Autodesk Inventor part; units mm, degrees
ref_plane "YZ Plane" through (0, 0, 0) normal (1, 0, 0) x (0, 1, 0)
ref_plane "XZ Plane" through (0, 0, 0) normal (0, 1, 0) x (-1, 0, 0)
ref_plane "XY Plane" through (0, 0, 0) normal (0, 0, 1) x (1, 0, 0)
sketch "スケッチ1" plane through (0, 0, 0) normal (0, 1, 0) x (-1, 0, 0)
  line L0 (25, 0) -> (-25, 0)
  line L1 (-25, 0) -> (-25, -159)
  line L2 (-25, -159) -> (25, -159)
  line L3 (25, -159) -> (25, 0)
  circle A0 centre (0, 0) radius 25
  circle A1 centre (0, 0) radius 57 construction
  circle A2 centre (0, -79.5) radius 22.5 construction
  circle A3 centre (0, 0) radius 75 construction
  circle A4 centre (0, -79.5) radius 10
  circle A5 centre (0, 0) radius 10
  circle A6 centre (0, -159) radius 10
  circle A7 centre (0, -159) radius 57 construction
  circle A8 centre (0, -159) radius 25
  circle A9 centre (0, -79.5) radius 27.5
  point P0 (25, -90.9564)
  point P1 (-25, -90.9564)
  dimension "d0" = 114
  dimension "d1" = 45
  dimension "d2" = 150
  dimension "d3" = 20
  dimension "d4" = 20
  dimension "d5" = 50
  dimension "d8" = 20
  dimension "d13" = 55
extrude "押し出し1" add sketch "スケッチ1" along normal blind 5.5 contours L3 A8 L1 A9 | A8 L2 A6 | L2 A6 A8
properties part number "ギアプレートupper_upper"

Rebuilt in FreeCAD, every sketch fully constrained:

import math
import FreeCAD as App
import Part
import Sketcher
Q = App.Units.Quantity

doc = App.newDocument("Part")
body = doc.addObject("PartDesign::Body", "Body")

# Sketch on XZ plane
sketch1 = body.newObject("Sketcher::SketchObject", "Sketch")
sketch1.AttachmentSupport = (doc.getObject("XZ_Plane"), [""])
sketch1.MapMode = "FlatFace"
sketch1.addGeometry([
    Part.LineSegment(App.Vector(-25, -159, 0), App.Vector(-25, -90.956439, 0)),  # 0
    Part.ArcOfCircle(Part.Circle(App.Vector(0, -79.5, 0), App.Vector(0, 0, 1), 27.5), math.radians(-155.380023), math.radians(-24.619977)),  # 1
    Part.LineSegment(App.Vector(25, -90.956439, 0), App.Vector(25, -159, 0)),  # 2
    Part.ArcOfCircle(Part.Circle(App.Vector(0, -159, 0), App.Vector(0, 0, 1), 25), math.radians(180), math.radians(360)),  # 3
    Part.Circle(App.Vector(0, -159, 0), App.Vector(0, 0, 1), 10),  # 4
], False)
sketch1.addConstraint([
    Sketcher.Constraint("Coincident", 0, 2, 1, 1),
    Sketcher.Constraint("Coincident", 1, 2, 2, 1),
    Sketcher.Constraint("Tangent", 2, 2, 3, 2),
    Sketcher.Constraint("Tangent", 3, 1, 0, 1),
    Sketcher.Constraint("Vertical", 0),
    Sketcher.Constraint("Vertical", 2),
    Sketcher.Constraint("Coincident", 4, 3, 3, 3),
    Sketcher.Constraint("Symmetric", 0, 2, 1, 2, -2),
    Sketcher.Constraint("Diameter", 4, Q("20 mm")),
    Sketcher.Constraint("Radius", 3, Q("25 mm")),
    Sketcher.Constraint("Radius", 1, Q("27.5 mm")),
    Sketcher.Constraint("DistanceY", 3, 3, -1, 1, Q("159 mm")),
    Sketcher.Constraint("DistanceY", 1, 3, -1, 1, Q("79.5 mm")),
])
pad1 = body.newObject("PartDesign::Pad", "Pad")
pad1.Profile = sketch1
pad1.Length = 5.5
pad1.Reversed = True

doc.recompute()
